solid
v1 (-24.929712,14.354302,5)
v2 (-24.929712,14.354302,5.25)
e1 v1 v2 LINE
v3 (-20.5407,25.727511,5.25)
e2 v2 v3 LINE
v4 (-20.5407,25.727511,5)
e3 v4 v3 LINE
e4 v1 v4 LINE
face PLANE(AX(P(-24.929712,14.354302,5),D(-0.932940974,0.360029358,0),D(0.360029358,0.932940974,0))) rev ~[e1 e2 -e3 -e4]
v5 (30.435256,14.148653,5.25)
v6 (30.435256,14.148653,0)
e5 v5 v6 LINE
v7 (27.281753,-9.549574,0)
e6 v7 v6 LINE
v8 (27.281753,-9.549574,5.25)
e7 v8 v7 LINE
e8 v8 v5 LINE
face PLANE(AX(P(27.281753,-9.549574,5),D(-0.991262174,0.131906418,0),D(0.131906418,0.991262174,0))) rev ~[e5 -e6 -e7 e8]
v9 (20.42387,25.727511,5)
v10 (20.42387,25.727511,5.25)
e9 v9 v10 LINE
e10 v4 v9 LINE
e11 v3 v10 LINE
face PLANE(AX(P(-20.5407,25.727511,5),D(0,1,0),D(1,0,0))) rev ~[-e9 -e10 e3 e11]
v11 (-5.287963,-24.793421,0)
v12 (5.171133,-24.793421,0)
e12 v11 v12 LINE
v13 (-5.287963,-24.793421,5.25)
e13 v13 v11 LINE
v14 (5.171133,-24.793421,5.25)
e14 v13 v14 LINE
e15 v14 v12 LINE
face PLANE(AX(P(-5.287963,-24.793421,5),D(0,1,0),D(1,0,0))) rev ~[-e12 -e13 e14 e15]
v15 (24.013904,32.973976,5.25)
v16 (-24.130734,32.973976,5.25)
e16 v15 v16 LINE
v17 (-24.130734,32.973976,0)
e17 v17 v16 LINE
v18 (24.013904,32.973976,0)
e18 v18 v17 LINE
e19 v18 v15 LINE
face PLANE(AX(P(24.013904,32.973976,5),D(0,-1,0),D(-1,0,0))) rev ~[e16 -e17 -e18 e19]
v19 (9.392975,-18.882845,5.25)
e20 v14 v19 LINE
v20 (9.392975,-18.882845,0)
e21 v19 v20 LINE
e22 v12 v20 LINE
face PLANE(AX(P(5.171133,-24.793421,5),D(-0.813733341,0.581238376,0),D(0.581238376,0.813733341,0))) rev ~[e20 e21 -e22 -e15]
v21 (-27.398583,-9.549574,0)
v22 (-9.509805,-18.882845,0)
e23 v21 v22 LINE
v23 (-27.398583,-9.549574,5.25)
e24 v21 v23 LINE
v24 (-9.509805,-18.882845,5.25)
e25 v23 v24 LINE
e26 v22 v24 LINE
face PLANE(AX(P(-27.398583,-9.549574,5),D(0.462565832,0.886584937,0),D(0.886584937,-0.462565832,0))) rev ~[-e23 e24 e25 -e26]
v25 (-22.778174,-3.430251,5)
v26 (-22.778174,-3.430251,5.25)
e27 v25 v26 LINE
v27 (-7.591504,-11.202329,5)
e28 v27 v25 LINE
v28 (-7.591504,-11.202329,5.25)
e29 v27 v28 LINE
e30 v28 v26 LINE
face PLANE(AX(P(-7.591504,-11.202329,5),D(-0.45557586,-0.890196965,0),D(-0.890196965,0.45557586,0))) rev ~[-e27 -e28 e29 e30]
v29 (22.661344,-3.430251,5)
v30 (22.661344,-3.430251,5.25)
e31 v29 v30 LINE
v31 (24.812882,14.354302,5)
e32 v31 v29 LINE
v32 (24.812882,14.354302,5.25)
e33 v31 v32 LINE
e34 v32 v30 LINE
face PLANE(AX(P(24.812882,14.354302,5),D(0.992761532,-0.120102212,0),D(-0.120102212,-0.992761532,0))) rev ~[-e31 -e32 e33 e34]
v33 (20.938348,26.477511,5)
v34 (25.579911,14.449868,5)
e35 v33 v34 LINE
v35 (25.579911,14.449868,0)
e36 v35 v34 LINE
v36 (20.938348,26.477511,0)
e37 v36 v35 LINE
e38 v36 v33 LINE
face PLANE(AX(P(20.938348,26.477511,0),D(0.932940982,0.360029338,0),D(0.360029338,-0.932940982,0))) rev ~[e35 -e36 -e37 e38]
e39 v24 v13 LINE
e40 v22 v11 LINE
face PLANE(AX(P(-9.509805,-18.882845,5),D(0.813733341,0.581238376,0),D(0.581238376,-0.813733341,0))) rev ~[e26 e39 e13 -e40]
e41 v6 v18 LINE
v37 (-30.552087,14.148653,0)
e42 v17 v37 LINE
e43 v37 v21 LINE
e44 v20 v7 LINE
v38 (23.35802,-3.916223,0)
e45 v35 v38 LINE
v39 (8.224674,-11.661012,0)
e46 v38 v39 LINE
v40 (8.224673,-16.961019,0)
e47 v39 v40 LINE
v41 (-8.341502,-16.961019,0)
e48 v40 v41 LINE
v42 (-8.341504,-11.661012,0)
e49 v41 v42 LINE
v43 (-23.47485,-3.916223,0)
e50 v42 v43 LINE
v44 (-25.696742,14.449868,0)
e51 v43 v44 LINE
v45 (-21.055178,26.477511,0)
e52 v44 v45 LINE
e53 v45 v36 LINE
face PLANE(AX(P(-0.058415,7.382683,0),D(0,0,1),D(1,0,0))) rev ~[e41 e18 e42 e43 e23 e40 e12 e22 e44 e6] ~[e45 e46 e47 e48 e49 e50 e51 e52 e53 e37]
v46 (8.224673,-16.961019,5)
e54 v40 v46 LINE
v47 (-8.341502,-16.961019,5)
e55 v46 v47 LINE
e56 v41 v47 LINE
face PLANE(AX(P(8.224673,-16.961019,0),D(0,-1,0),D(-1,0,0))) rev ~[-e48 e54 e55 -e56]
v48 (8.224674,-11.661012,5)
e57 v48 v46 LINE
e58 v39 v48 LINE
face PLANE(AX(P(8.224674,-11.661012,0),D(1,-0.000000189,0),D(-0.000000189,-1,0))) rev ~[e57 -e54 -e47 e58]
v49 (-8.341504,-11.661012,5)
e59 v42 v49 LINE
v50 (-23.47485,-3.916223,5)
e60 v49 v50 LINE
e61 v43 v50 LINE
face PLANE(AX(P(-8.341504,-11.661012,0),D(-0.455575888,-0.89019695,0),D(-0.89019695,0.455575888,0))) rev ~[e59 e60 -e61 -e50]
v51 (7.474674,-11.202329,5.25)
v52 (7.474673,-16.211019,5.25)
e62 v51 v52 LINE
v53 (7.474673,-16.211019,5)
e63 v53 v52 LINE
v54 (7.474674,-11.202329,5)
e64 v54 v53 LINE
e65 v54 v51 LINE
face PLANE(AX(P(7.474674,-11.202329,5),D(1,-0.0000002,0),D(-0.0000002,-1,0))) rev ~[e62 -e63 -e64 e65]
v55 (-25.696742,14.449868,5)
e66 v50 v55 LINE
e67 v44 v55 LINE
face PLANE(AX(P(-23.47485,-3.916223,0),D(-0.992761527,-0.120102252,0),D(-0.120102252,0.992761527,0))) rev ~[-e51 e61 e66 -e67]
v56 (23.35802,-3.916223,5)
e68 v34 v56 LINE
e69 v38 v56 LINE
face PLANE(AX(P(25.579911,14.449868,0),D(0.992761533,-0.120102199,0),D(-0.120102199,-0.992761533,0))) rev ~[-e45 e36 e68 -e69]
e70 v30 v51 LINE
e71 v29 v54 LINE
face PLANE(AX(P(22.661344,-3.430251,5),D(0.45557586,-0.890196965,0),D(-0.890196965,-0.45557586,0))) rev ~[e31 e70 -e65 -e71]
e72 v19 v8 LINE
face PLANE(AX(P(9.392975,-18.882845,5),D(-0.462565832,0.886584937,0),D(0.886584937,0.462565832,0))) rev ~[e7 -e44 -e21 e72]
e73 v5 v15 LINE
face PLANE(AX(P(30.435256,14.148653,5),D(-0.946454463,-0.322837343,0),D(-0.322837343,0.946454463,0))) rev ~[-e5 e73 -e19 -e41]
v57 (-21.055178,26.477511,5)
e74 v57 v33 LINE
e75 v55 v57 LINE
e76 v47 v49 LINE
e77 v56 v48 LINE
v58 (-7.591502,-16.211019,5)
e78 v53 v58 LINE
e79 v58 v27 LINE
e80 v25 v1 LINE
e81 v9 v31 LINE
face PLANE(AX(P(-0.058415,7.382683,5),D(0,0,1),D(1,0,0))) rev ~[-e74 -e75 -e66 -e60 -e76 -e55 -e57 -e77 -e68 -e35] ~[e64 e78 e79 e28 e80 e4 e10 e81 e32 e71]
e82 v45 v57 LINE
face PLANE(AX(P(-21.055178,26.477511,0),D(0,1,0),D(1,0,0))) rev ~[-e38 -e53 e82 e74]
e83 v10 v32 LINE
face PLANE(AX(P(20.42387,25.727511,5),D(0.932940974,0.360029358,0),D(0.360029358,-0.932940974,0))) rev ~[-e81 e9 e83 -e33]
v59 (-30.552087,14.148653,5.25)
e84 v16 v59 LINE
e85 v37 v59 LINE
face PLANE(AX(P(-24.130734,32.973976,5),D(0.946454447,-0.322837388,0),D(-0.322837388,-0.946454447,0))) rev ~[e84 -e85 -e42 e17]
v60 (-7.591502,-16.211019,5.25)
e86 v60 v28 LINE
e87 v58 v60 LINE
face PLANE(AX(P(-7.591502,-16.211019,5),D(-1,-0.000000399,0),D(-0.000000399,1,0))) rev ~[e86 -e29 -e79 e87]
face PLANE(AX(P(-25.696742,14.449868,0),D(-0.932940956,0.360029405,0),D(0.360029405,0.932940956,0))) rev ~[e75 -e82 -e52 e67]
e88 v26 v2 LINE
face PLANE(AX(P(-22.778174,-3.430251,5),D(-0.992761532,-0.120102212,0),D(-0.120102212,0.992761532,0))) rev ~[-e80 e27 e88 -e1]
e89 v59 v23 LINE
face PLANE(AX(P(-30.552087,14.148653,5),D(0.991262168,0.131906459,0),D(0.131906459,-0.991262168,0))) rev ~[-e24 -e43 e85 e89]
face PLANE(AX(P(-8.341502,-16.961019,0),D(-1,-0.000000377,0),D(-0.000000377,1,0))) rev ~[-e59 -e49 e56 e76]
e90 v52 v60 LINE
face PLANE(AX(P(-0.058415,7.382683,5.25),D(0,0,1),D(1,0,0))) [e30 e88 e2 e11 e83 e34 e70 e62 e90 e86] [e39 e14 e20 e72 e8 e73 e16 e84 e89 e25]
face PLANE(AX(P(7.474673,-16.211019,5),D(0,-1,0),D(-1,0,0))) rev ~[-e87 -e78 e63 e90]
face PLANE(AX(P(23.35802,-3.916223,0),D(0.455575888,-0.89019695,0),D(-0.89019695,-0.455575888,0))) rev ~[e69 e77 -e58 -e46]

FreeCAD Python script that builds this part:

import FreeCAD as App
import Part
import Sketcher
from FreeCAD import Vector


def add_polygon(sketch, points):
    """Adds a closed chain of lines whose ends are joined by coincident constraints."""
    first, n = sketch.GeometryCount, len(points)
    for a, b in zip(points, points[1:] + points[:1]):
        sketch.addGeometry(Part.LineSegment(App.Vector(*a, 0), App.Vector(*b, 0)), False)
    for i in range(n):
        sketch.addConstraint(Sketcher.Constraint("Coincident", first + i, 2, first + (i + 1) % n, 1))

doc = App.newDocument("Part")
body = doc.addObject("PartDesign::Body", "Body")

# Sketch on XY plane
sketch1 = body.newObject("Sketcher::SketchObject", "Sketch")
sketch1.AttachmentSupport = (doc.getObject("XY_Plane"), [""])
sketch1.MapMode = "FlatFace"
add_polygon(sketch1, [(30, 14), (24, 33), (-24, 33), (-31, 14), (-27, -10), (-10, -19), (-5, -25), (5, -25), (9, -19), (27, -10)])  # lines 0-9
add_polygon(sketch1, [(-23, -4), (-26, 14), (-21, 26), (21, 26), (26, 14), (23, -4), (8, -12), (8, -17), (-8, -17), (-8, -12)])  # lines 10-19
sketch1.addConstraint([
    Sketcher.Constraint("Horizontal", 1),
    Sketcher.Constraint("Horizontal", 6),
    Sketcher.Constraint("Horizontal", 12),
    Sketcher.Constraint("Vertical", 16),
    Sketcher.Constraint("Horizontal", 17),
    Sketcher.Constraint("Horizontal", 4, 2, 7, 2),
    Sketcher.Constraint("Horizontal", 3, 2, 8, 2),
    Sketcher.Constraint("Horizontal", 2, 2, 9, 2),
    Sketcher.Constraint("Horizontal", 10, 2, 13, 2),
    Sketcher.Constraint("Horizontal", 15, 2, 18, 2),
    Sketcher.Constraint("Horizontal", 14, 2, 19, 2),
    Sketcher.Constraint("Equal", 0, 2),
    Sketcher.Constraint("Equal", 5, 7),
    Sketcher.Constraint("Equal", 4, 8),
    Sketcher.Constraint("Equal", 3, 9),
    Sketcher.Constraint("Equal", 11, 13),
    Sketcher.Constraint("Equal", 10, 14),
    Sketcher.Constraint("Equal", 15, 19),
    Sketcher.Constraint("DistanceY", 6, 2, 14, 2, 20.877198),
    Sketcher.Constraint("DistanceX", 15, 2, 7, 2, 1.168301),
    Sketcher.Constraint("DistanceY", 6, 2, 16, 2, 7.832402),
    Sketcher.Constraint("DistanceX", 4, 2, 18, 2, 1.168301),
    Sketcher.Constraint("Distance", 5, 7.263529),
    Sketcher.Constraint("Distance", 11, 12.89218),
    Sketcher.Constraint("DistanceX", 1, 2, 1, 1, 48.144638),
    Sketcher.Constraint("DistanceX", 6, 1, 6, 2, 10.459096),
    Sketcher.Constraint("DistanceX", 12, 1, 12, 2, 41.993526),
    Sketcher.Constraint("DistanceX", 17, 2, 17, 1, 16.566175),
    Sketcher.Constraint("DistanceY", 16, 2, 16, 1, 5.300007),
    Sketcher.Constraint("DistanceY", 5, 2, -1, 1, 24.793421),
    Sketcher.Constraint("DistanceX", 11, 2, -1, 1, 21.055178),
    Sketcher.Constraint("DistanceY", -1, 1, 11, 2, 26.477511),
    Sketcher.Constraint("DistanceX", -1, 1, 13, 2, 25.579911),
    Sketcher.Constraint("DistanceX", -1, 1, 14, 2, 23.35802),
    Sketcher.Constraint("DistanceX", 2, 2, 0, 2, 54.565991),
    Sketcher.Constraint("DistanceX", 3, 2, 1, 2, 3.267849),
    Sketcher.Constraint("DistanceY", 3, 2, 1, 2, 42.52355),
    Sketcher.Constraint("DistanceY", 4, 2, 3, 2, 9.333271),
    Sketcher.Constraint("DistanceX", 2, 2, 4, 2, 21.042282),
    Sketcher.Constraint("Distance", 0, 19.890363),
])
pad1 = body.newObject("PartDesign::Pad", "Pad")
pad1.Profile = sketch1
pad1.Length = 5

# Sketch on XY plane
sketch2 = body.newObject("Sketcher::SketchObject", "Sketch001")
sketch2.AttachmentSupport = (doc.getObject("XY_Plane"), [""])
sketch2.MapMode = "FlatFace"
sketch2.AttachmentOffset = App.Placement(Vector(0, 0, 5), App.Rotation())
add_polygon(sketch2, [(30, 14), (24, 33), (-24, 33), (-31, 14), (-27, -10), (-10, -19), (-5, -25), (5, -25), (9, -19), (27, -10)])  # lines 0-9
add_polygon(sketch2, [(-8, -11), (-23, -3), (-25, 14), (-21, 26), (20, 26), (25, 14), (23, -3), (7, -11), (7, -16), (-8, -16)])  # lines 10-19
sketch2.addConstraint([
    Sketcher.Constraint("Horizontal", 1),
    Sketcher.Constraint("Horizontal", 6),
    Sketcher.Constraint("Horizontal", 13),
    Sketcher.Constraint("Vertical", 17),
    Sketcher.Constraint("Horizontal", 18),
    Sketcher.Constraint("Vertical", 19),
    Sketcher.Constraint("Horizontal", 4, 2, 7, 2),
    Sketcher.Constraint("Horizontal", 3, 2, 8, 2),
    Sketcher.Constraint("Horizontal", 2, 2, 9, 2),
    Sketcher.Constraint("Horizontal", 11, 2, 14, 2),
    Sketcher.Constraint("Horizontal", 10, 2, 15, 2),
    Sketcher.Constraint("Horizontal", 16, 2, 19, 2),
    Sketcher.Constraint("Equal", 0, 2),
    Sketcher.Constraint("Equal", 5, 7),
    Sketcher.Constraint("Equal", 4, 8),
    Sketcher.Constraint("Equal", 3, 9),
    Sketcher.Constraint("Equal", 12, 14),
    Sketcher.Constraint("Equal", 11, 15),
    Sketcher.Constraint("Equal", 10, 16),
    Sketcher.Constraint("Distance", 10, 17.059899),
    Sketcher.Constraint("DistanceX", 13, 1, 13, 2, 40.96457),
    Sketcher.Constraint("DistanceY", 17, 2, 17, 1, 5.00869),
    Sketcher.Constraint("DistanceX", 12, 2, -1, 1, 20.5407),
    Sketcher.Constraint("DistanceX", 16, 2, 7, 2, 1.918301),
    Sketcher.Constraint("DistanceY", 6, 2, 17, 2, 8.582402),
    Sketcher.Constraint("DistanceX", 4, 2, 19, 2, 1.918301),
    Sketcher.Constraint("Distance", 5, 7.263529),
    Sketcher.Constraint("DistanceX", 1, 2, 1, 1, 48.144638),
    Sketcher.Constraint("DistanceX", 6, 1, 6, 2, 10.459096),
    Sketcher.Constraint("DistanceX", 18, 2, 18, 1, 15.066175),
    Sketcher.Constraint("DistanceY", 5, 2, -1, 1, 24.793421),
    Sketcher.Constraint("DistanceY", 10, 2, -1, 1, 3.430251),
    Sketcher.Constraint("DistanceX", 11, 2, -1, 1, 24.929712),
    Sketcher.Constraint("DistanceY", -1, 1, 12, 2, 25.727511),
    Sketcher.Constraint("DistanceX", 2, 2, 0, 2, 54.565991),
    Sketcher.Constraint("DistanceX", 3, 2, 1, 2, 3.267849),
    Sketcher.Constraint("DistanceY", 3, 2, 1, 2, 42.52355),
    Sketcher.Constraint("DistanceY", 4, 2, 3, 2, 9.333271),
    Sketcher.Constraint("DistanceY", 2, 2, 11, 2, 0.205649),
    Sketcher.Constraint("DistanceY", 11, 2, 12, 2, 11.373209),
])
pad2 = body.newObject("PartDesign::Pad", "Pad001")
pad2.Profile = sketch2
pad2.Length = 0.25

doc.recompute()
